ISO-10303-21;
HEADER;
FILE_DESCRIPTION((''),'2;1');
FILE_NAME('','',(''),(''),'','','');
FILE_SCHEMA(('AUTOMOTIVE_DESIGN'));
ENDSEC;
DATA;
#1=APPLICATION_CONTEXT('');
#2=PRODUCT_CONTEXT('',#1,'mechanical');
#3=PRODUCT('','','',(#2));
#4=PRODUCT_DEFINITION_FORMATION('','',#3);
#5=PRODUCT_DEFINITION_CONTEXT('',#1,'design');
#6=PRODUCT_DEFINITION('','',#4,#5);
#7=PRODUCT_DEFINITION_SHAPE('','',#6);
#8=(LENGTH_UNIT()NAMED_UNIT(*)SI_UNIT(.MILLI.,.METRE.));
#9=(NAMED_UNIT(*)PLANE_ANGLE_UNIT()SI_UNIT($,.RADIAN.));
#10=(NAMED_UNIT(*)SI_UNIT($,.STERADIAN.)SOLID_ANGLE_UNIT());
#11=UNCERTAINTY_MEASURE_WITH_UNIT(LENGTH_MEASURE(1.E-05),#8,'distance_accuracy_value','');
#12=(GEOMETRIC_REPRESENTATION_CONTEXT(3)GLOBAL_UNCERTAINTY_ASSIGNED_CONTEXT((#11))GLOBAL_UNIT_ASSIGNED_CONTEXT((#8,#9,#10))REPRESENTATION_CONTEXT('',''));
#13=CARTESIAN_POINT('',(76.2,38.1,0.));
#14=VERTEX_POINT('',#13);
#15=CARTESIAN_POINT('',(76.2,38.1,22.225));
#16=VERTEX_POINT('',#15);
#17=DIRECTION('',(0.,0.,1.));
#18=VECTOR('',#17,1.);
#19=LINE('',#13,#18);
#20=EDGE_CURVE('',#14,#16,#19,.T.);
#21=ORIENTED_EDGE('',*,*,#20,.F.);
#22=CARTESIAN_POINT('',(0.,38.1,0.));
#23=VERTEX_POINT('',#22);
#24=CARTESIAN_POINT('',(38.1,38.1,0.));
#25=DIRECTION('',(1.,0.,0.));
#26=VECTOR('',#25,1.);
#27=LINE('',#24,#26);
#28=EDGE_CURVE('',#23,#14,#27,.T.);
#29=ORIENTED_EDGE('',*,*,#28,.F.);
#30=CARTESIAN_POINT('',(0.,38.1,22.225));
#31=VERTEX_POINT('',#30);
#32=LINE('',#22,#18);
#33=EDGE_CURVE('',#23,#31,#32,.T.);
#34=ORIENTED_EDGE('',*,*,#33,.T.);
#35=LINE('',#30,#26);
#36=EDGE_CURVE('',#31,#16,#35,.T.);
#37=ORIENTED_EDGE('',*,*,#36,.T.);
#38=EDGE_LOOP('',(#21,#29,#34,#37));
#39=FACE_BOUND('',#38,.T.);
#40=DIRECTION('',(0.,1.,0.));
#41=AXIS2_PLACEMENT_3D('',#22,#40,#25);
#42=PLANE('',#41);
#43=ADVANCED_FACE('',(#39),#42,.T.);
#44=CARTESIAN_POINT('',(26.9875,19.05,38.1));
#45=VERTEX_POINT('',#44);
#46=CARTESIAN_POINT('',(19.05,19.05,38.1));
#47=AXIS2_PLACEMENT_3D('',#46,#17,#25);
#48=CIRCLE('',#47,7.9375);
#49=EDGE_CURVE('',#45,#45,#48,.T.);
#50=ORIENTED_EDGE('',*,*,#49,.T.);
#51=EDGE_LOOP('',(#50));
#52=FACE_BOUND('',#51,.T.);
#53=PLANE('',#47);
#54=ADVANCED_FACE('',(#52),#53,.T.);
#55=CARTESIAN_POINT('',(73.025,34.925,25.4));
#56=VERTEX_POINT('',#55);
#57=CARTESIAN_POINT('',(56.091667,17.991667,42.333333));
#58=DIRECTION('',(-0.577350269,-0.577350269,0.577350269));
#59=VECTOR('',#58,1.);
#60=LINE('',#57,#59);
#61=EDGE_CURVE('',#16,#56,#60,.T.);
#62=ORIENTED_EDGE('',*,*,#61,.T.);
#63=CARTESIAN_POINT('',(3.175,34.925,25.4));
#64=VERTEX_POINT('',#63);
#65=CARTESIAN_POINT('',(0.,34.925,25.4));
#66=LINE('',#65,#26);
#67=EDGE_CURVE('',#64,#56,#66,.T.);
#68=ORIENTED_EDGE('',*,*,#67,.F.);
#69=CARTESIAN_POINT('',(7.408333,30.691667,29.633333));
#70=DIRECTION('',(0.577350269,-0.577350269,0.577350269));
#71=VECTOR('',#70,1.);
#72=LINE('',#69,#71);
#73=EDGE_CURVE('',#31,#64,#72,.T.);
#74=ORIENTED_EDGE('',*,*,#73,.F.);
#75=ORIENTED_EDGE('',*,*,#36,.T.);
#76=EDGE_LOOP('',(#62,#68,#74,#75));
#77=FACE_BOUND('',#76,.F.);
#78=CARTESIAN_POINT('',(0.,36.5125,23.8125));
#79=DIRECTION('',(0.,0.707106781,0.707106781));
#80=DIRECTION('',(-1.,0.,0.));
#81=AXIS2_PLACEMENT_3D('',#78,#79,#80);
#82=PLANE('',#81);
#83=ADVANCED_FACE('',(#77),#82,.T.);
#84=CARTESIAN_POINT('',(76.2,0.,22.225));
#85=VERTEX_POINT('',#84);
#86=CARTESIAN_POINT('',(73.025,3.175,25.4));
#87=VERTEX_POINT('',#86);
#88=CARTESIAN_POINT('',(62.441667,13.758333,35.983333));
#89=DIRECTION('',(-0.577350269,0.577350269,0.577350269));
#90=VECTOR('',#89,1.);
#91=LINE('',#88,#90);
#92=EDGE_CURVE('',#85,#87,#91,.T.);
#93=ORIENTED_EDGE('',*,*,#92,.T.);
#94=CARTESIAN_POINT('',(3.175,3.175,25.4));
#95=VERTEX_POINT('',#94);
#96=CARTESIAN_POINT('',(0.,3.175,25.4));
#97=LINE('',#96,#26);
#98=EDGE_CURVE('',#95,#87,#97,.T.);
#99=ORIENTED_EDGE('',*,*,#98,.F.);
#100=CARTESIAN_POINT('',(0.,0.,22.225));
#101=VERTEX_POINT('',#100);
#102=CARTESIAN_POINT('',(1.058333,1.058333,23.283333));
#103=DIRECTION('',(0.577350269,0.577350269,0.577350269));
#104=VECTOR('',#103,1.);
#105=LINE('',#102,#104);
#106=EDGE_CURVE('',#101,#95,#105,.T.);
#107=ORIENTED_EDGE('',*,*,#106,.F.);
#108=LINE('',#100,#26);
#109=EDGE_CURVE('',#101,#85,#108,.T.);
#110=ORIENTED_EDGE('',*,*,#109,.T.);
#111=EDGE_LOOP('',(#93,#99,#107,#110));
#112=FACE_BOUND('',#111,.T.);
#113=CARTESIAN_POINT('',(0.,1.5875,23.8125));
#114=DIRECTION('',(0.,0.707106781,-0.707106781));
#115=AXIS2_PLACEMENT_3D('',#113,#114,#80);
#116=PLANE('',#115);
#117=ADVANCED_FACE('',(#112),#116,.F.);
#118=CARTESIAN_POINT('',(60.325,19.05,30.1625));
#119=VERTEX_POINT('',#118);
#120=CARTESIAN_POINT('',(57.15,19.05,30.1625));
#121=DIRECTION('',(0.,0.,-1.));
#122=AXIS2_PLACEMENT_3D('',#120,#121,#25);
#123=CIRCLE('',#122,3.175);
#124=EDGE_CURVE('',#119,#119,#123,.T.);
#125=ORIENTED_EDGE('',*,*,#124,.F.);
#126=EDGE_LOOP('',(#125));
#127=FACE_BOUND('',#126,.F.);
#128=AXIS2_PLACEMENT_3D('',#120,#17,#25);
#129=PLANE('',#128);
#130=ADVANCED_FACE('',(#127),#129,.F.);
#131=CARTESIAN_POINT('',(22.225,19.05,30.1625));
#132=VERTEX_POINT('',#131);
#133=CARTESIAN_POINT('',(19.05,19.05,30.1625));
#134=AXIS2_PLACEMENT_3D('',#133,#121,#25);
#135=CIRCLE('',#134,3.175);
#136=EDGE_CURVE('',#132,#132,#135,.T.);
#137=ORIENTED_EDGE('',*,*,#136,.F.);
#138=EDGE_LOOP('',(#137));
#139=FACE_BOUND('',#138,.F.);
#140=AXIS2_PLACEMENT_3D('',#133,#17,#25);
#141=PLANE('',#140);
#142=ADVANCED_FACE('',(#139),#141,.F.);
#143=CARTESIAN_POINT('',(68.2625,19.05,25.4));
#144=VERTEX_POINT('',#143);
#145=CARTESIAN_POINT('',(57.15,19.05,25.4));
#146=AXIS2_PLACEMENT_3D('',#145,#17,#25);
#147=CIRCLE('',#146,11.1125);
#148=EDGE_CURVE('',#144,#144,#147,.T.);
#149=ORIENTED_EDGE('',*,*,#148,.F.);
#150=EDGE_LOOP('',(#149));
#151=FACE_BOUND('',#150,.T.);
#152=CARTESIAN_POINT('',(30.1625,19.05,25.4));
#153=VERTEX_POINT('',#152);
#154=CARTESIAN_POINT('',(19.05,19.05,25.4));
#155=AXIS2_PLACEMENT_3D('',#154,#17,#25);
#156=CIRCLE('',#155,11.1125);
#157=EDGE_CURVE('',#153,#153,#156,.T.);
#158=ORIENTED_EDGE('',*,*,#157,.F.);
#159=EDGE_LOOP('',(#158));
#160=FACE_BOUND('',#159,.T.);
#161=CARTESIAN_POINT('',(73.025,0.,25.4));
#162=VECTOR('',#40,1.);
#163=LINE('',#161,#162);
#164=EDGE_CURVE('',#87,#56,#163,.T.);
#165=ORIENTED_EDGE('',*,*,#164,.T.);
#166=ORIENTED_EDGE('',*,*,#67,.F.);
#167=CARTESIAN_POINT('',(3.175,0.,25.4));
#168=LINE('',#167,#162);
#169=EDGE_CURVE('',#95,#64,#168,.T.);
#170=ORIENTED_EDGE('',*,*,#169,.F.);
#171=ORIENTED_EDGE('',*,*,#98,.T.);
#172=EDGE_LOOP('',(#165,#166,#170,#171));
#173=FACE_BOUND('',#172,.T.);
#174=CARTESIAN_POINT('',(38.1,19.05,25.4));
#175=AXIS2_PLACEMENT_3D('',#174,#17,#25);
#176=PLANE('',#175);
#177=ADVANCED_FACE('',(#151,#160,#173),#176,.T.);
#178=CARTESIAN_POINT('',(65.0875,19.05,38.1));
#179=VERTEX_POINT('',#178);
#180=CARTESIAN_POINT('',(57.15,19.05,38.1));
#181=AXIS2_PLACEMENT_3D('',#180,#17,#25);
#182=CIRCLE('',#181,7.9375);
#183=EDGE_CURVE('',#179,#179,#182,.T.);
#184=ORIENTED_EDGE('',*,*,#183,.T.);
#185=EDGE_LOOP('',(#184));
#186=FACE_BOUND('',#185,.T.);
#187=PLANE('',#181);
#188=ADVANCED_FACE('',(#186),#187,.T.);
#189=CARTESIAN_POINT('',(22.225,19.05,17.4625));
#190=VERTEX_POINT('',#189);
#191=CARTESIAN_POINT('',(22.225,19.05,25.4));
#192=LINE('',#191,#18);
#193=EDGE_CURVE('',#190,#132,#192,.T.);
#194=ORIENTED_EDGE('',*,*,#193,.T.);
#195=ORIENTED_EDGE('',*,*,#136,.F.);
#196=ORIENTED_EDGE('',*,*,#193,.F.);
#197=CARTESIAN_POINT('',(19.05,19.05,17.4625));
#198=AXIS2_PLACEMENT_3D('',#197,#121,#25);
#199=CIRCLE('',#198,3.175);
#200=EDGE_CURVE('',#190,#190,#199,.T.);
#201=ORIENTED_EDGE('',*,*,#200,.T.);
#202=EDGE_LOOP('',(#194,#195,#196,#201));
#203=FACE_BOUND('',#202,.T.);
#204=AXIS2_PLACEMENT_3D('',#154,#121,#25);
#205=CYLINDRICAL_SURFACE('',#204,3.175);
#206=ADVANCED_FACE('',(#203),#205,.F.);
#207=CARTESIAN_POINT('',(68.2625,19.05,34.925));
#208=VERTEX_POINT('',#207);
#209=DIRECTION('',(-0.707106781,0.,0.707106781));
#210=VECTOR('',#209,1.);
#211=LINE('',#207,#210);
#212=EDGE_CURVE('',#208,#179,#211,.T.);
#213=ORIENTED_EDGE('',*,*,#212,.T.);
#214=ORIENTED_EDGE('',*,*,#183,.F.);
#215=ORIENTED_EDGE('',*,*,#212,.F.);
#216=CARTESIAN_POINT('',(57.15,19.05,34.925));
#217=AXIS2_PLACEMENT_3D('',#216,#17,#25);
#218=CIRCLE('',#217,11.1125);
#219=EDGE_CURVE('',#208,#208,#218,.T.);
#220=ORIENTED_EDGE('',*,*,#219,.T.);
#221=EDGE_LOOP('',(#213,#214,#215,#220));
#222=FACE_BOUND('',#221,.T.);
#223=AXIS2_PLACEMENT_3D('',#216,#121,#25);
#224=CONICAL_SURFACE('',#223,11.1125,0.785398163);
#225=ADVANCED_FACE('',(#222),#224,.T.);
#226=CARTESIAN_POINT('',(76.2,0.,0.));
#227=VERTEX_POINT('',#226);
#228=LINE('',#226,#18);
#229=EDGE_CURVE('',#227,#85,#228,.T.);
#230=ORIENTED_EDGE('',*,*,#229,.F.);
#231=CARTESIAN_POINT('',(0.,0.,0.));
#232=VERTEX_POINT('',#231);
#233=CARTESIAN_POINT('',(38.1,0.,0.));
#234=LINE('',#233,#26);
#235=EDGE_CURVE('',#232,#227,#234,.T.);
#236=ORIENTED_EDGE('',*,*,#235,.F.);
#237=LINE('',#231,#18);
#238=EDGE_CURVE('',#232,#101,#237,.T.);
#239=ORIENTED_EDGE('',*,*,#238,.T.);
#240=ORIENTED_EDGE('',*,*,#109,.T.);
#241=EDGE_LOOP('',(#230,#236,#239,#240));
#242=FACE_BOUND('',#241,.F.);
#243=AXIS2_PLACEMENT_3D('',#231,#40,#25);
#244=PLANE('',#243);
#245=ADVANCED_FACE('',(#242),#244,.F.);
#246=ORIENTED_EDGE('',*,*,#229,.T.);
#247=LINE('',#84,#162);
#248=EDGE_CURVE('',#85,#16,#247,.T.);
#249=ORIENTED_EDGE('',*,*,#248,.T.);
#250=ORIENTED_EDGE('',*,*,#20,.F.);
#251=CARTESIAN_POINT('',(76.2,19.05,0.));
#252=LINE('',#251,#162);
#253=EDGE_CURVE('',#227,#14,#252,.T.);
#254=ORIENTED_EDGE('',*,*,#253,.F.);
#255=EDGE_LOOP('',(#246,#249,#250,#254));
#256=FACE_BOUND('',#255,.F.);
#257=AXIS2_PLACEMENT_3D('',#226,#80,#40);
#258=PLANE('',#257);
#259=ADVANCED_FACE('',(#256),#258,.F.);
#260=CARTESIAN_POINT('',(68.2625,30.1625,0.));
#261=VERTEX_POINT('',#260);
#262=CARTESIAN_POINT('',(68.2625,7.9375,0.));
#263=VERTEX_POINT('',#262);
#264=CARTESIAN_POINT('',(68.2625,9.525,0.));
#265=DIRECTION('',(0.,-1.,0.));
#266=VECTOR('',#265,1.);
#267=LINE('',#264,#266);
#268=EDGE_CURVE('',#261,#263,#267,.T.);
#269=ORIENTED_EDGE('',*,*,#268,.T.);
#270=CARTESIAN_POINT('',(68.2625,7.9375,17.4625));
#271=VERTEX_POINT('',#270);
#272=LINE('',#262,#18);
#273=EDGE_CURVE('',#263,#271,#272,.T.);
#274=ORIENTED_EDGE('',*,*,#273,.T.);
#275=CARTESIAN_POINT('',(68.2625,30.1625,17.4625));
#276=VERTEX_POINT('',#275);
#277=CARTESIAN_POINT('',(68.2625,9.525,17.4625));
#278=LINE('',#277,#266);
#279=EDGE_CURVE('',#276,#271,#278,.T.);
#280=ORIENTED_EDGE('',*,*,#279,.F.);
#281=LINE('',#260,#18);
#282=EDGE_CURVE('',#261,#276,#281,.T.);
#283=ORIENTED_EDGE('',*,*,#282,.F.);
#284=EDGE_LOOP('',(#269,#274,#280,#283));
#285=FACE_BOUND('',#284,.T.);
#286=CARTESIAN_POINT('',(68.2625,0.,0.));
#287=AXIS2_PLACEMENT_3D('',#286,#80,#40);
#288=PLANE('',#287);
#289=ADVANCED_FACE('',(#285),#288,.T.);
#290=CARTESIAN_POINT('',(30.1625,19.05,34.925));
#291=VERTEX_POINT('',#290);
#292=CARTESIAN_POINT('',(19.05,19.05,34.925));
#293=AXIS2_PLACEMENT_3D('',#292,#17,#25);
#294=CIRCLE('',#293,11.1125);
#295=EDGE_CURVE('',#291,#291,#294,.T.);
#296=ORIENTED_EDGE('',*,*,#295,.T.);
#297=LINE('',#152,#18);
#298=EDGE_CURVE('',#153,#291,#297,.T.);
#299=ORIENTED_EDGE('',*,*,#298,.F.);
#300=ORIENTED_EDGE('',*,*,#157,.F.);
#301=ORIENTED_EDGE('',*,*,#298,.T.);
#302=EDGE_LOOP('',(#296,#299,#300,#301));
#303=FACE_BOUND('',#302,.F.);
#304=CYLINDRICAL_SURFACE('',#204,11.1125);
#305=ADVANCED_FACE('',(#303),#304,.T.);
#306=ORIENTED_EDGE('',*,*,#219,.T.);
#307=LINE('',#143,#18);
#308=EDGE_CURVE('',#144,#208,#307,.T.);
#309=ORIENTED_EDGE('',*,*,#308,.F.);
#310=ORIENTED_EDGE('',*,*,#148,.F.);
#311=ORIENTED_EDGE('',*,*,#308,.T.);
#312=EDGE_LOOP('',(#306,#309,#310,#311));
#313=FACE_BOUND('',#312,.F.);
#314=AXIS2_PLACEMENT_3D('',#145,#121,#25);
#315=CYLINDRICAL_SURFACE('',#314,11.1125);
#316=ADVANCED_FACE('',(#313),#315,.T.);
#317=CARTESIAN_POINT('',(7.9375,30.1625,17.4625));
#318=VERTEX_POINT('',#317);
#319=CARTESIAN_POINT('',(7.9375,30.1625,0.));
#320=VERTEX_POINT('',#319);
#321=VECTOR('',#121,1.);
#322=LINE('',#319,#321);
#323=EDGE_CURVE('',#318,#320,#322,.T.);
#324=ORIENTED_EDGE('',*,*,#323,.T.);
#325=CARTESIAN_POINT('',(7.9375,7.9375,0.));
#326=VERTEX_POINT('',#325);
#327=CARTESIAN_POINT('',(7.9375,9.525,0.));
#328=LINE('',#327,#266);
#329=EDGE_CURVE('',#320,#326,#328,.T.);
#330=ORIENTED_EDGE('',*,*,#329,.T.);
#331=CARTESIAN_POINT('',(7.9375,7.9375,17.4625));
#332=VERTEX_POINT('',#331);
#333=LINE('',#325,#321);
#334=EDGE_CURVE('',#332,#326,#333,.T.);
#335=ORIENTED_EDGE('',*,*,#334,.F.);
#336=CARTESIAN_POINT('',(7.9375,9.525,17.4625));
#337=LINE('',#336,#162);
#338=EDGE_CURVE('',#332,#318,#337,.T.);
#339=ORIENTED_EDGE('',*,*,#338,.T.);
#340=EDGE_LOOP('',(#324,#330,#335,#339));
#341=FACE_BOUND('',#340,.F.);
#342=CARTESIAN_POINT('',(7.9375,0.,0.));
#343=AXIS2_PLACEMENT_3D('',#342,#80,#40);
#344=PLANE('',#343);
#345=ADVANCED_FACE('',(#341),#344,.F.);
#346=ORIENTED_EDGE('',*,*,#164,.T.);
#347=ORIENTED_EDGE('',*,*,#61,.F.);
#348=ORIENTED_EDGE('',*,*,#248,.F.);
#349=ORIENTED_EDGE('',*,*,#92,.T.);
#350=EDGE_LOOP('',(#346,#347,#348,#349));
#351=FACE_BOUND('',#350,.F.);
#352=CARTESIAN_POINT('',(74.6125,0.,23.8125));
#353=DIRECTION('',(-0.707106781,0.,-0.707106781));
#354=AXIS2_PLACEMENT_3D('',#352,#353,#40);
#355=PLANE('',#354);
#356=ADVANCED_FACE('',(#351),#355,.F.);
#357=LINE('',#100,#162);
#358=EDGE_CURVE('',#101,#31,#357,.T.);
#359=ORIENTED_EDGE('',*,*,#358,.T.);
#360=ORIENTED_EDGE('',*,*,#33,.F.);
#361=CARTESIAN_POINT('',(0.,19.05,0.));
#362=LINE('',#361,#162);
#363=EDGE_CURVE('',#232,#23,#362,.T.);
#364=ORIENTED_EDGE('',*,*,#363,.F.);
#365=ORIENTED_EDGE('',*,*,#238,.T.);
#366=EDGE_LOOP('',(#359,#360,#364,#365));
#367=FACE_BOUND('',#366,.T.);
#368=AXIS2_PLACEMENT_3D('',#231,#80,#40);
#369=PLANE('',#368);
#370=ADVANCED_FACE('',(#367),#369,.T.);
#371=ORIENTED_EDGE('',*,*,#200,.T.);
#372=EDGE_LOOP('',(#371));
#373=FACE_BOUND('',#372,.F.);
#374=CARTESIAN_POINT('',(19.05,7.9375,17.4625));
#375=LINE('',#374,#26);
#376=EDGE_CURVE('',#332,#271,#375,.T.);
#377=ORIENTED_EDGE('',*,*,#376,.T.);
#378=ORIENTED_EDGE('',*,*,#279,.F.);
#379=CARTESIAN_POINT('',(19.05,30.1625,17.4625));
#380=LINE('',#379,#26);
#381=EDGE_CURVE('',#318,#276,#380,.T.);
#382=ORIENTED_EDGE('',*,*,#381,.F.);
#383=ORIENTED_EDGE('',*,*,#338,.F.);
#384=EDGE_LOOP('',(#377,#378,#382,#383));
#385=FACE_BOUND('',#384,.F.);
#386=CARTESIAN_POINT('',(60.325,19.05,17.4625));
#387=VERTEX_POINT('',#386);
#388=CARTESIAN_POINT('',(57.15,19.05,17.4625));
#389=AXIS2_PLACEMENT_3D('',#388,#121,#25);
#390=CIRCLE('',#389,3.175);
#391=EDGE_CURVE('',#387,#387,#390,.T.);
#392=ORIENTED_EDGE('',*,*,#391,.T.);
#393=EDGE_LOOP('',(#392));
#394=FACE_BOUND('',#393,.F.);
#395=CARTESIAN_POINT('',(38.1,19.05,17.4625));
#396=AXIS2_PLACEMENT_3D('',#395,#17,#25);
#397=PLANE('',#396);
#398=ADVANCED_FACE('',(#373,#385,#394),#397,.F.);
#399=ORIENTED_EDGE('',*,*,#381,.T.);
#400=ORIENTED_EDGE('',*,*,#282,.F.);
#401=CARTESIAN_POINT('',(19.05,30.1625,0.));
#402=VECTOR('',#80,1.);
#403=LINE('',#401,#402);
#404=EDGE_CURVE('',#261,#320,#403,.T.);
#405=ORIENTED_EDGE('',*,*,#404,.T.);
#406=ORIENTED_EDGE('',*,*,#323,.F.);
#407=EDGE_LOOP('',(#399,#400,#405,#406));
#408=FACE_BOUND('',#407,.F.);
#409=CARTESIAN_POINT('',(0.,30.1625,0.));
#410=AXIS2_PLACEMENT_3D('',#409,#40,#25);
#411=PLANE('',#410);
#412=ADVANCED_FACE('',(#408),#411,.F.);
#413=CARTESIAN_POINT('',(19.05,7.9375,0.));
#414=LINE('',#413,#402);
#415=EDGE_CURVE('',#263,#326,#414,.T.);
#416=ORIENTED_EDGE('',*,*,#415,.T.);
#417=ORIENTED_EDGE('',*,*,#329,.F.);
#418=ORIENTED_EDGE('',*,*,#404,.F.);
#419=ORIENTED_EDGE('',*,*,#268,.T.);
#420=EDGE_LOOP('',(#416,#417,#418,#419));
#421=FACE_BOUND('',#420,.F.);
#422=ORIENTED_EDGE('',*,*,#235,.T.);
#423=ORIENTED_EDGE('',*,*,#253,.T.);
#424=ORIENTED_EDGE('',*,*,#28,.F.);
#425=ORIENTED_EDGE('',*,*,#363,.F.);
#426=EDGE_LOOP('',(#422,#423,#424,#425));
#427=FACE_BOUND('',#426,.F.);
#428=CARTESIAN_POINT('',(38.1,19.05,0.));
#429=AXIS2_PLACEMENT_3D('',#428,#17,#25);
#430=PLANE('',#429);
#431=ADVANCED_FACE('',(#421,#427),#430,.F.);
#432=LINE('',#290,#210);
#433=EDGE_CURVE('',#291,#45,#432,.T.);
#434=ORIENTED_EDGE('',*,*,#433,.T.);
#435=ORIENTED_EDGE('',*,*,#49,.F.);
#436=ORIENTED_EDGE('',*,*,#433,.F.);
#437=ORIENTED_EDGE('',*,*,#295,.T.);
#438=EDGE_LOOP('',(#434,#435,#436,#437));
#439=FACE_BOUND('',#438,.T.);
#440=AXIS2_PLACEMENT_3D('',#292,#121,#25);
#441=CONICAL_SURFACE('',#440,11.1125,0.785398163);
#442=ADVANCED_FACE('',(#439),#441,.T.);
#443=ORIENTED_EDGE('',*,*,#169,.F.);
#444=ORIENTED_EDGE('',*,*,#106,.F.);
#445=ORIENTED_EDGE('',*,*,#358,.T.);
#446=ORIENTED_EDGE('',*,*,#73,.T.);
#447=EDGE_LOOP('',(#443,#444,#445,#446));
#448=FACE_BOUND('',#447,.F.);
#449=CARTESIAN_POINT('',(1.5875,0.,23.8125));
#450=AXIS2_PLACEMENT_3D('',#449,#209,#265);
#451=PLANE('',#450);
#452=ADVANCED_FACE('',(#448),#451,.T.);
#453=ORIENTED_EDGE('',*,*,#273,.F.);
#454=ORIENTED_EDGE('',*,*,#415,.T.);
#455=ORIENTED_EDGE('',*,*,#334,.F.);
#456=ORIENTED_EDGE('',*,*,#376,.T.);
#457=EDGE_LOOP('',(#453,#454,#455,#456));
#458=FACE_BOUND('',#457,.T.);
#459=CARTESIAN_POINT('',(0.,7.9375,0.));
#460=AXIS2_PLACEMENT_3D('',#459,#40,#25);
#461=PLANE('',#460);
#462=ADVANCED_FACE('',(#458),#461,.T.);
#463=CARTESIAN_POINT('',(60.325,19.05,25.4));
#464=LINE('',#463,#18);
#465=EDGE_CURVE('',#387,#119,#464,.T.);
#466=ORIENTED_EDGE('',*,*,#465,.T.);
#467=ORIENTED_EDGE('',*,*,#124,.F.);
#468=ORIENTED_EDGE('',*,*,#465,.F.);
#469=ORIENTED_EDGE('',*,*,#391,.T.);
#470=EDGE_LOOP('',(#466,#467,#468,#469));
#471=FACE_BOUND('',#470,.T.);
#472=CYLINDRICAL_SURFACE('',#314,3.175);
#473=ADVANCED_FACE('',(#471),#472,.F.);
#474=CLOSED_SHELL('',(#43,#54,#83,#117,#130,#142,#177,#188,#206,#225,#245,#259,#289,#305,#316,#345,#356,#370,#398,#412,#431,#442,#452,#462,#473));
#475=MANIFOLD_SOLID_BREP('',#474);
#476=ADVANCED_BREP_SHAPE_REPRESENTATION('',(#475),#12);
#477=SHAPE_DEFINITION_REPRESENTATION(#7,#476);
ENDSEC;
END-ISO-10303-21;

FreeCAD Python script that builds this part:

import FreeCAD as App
import Part
import Sketcher

V = App.Vector
Q = App.Units.Quantity


def edges_at(feature, points):
    """Names of the edges that pass closest to the given points."""
    edges = feature.Shape.Edges
    near = lambda p: min(range(len(edges)), key=lambda i: edges[i].distToShape(Part.Vertex(*p))[0])
    return sorted({f"Edge{near(p) + 1}" for p in points})


def faces_at(feature, points):
    """Names of the faces that lie closest to the given points."""
    faces = feature.Shape.Faces
    near = lambda p: min(range(len(faces)), key=lambda i: faces[i].distToShape(Part.Vertex(*p))[0])
    return sorted({f"Face{near(p) + 1}" for p in points})


def add_polygon(sketch, points):
    """Adds a closed chain of lines whose ends are joined by coincident constraints."""
    first, n = sketch.GeometryCount, len(points)
    for a, b in zip(points, points[1:] + points[:1]):
        sketch.addGeometry(Part.LineSegment(App.Vector(*a, 0), App.Vector(*b, 0)), False)
    for i in range(n):
        sketch.addConstraint(Sketcher.Constraint("Coincident", first + i, 2, first + (i + 1) % n, 1))

doc = App.newDocument("Part")
body = doc.addObject("PartDesign::Body", "Body")

sketch1 = body.newObject("Sketcher::SketchObject", "Sketch")
sketch1.AttachmentSupport = (doc.getObject("XY_Plane"), [""])
sketch1.MapMode = "FlatFace"
add_polygon(sketch1, [(0, 38.1), (0, 0), (76.2, 0), (76.2, 38.1)])
sketch1.addConstraint(Sketcher.Constraint("Vertical", 0))
sketch1.addConstraint(Sketcher.Constraint("Horizontal", 1))
sketch1.addConstraint(Sketcher.Constraint("Vertical", 2))
sketch1.addConstraint(Sketcher.Constraint("Horizontal", 3))
sketch1.addConstraint(Sketcher.Constraint("Coincident", 0, 2, -1, 1))
sketch1.addConstraint(Sketcher.Constraint("DistanceX", 1, 1, 1, 2, Q("3 in")))
sketch1.addConstraint(Sketcher.Constraint("DistanceY", 0, 2, 0, 1, Q("1.5 in")))
pad1 = body.newObject("PartDesign::Pad", "Pad")
pad1.Profile = sketch1
pad1.Length = Q("1 in")

sketch2 = body.newObject("Sketcher::SketchObject", "Sketch001")
sketch2.AttachmentSupport = (doc.getObject("XY_Plane"), [""])
sketch2.MapMode = "FlatFace"
sketch2.AttachmentOffset = App.Placement(V(0, 0, 1 * 25.4), App.Rotation())
sketch2.addGeometry(Part.Circle(V(19.05, 19.05, 0), V(0, 0, 1), 11.1125), False)
sketch2.addGeometry(Part.Circle(V(57.15, 19.05, 0), V(0, 0, 1), 11.1125), False)
sketch2.addConstraint(Sketcher.Constraint("Equal", 0, 1))
sketch2.addConstraint(Sketcher.Constraint("Horizontal", 0, 3, 1, 3))
sketch2.addConstraint(Sketcher.Constraint("Diameter", 0, Q("0.875 in")))
sketch2.addConstraint(Sketcher.Constraint("DistanceX", 0, 3, 1, 3, Q("1.5 in")))
sketch2.addConstraint(Sketcher.Constraint("DistanceX", -1, 1, 0, 3, Q("0.75 in")))
sketch2.addConstraint(Sketcher.Constraint("DistanceY", -1, 1, 0, 3, Q("0.75 in")))
pad2 = body.newObject("PartDesign::Pad", "Pad001")
pad2.Profile = sketch2
pad2.Length = Q("0.5 in")
doc.recompute()

thickness = body.newObject("PartDesign::Thickness", "Thickness")
thickness.Base = (pad2, faces_at(pad2, [(38.1, 19.05, 0)]))
thickness.Value = Q("0.3125 in")
thickness.Reversed = True
thickness.Join = "Intersection"
doc.recompute()

chamfer = body.newObject("PartDesign::Chamfer", "Chamfer")
chamfer.Base = (thickness, edges_at(thickness, [
    (7.938, 19.05, 38.1),
    (46.038, 19.05, 38.1),
    (38.1, 0, 25.4),
    (38.1, 38.1, 25.4),
    (0, 19.05, 25.4),
    (76.2, 19.05, 25.4),
]))
chamfer.ChamferType = "Two distances"
chamfer.Size = Q("0.125 in")
chamfer.Size2 = Q("0.125 in")

doc.recompute()
